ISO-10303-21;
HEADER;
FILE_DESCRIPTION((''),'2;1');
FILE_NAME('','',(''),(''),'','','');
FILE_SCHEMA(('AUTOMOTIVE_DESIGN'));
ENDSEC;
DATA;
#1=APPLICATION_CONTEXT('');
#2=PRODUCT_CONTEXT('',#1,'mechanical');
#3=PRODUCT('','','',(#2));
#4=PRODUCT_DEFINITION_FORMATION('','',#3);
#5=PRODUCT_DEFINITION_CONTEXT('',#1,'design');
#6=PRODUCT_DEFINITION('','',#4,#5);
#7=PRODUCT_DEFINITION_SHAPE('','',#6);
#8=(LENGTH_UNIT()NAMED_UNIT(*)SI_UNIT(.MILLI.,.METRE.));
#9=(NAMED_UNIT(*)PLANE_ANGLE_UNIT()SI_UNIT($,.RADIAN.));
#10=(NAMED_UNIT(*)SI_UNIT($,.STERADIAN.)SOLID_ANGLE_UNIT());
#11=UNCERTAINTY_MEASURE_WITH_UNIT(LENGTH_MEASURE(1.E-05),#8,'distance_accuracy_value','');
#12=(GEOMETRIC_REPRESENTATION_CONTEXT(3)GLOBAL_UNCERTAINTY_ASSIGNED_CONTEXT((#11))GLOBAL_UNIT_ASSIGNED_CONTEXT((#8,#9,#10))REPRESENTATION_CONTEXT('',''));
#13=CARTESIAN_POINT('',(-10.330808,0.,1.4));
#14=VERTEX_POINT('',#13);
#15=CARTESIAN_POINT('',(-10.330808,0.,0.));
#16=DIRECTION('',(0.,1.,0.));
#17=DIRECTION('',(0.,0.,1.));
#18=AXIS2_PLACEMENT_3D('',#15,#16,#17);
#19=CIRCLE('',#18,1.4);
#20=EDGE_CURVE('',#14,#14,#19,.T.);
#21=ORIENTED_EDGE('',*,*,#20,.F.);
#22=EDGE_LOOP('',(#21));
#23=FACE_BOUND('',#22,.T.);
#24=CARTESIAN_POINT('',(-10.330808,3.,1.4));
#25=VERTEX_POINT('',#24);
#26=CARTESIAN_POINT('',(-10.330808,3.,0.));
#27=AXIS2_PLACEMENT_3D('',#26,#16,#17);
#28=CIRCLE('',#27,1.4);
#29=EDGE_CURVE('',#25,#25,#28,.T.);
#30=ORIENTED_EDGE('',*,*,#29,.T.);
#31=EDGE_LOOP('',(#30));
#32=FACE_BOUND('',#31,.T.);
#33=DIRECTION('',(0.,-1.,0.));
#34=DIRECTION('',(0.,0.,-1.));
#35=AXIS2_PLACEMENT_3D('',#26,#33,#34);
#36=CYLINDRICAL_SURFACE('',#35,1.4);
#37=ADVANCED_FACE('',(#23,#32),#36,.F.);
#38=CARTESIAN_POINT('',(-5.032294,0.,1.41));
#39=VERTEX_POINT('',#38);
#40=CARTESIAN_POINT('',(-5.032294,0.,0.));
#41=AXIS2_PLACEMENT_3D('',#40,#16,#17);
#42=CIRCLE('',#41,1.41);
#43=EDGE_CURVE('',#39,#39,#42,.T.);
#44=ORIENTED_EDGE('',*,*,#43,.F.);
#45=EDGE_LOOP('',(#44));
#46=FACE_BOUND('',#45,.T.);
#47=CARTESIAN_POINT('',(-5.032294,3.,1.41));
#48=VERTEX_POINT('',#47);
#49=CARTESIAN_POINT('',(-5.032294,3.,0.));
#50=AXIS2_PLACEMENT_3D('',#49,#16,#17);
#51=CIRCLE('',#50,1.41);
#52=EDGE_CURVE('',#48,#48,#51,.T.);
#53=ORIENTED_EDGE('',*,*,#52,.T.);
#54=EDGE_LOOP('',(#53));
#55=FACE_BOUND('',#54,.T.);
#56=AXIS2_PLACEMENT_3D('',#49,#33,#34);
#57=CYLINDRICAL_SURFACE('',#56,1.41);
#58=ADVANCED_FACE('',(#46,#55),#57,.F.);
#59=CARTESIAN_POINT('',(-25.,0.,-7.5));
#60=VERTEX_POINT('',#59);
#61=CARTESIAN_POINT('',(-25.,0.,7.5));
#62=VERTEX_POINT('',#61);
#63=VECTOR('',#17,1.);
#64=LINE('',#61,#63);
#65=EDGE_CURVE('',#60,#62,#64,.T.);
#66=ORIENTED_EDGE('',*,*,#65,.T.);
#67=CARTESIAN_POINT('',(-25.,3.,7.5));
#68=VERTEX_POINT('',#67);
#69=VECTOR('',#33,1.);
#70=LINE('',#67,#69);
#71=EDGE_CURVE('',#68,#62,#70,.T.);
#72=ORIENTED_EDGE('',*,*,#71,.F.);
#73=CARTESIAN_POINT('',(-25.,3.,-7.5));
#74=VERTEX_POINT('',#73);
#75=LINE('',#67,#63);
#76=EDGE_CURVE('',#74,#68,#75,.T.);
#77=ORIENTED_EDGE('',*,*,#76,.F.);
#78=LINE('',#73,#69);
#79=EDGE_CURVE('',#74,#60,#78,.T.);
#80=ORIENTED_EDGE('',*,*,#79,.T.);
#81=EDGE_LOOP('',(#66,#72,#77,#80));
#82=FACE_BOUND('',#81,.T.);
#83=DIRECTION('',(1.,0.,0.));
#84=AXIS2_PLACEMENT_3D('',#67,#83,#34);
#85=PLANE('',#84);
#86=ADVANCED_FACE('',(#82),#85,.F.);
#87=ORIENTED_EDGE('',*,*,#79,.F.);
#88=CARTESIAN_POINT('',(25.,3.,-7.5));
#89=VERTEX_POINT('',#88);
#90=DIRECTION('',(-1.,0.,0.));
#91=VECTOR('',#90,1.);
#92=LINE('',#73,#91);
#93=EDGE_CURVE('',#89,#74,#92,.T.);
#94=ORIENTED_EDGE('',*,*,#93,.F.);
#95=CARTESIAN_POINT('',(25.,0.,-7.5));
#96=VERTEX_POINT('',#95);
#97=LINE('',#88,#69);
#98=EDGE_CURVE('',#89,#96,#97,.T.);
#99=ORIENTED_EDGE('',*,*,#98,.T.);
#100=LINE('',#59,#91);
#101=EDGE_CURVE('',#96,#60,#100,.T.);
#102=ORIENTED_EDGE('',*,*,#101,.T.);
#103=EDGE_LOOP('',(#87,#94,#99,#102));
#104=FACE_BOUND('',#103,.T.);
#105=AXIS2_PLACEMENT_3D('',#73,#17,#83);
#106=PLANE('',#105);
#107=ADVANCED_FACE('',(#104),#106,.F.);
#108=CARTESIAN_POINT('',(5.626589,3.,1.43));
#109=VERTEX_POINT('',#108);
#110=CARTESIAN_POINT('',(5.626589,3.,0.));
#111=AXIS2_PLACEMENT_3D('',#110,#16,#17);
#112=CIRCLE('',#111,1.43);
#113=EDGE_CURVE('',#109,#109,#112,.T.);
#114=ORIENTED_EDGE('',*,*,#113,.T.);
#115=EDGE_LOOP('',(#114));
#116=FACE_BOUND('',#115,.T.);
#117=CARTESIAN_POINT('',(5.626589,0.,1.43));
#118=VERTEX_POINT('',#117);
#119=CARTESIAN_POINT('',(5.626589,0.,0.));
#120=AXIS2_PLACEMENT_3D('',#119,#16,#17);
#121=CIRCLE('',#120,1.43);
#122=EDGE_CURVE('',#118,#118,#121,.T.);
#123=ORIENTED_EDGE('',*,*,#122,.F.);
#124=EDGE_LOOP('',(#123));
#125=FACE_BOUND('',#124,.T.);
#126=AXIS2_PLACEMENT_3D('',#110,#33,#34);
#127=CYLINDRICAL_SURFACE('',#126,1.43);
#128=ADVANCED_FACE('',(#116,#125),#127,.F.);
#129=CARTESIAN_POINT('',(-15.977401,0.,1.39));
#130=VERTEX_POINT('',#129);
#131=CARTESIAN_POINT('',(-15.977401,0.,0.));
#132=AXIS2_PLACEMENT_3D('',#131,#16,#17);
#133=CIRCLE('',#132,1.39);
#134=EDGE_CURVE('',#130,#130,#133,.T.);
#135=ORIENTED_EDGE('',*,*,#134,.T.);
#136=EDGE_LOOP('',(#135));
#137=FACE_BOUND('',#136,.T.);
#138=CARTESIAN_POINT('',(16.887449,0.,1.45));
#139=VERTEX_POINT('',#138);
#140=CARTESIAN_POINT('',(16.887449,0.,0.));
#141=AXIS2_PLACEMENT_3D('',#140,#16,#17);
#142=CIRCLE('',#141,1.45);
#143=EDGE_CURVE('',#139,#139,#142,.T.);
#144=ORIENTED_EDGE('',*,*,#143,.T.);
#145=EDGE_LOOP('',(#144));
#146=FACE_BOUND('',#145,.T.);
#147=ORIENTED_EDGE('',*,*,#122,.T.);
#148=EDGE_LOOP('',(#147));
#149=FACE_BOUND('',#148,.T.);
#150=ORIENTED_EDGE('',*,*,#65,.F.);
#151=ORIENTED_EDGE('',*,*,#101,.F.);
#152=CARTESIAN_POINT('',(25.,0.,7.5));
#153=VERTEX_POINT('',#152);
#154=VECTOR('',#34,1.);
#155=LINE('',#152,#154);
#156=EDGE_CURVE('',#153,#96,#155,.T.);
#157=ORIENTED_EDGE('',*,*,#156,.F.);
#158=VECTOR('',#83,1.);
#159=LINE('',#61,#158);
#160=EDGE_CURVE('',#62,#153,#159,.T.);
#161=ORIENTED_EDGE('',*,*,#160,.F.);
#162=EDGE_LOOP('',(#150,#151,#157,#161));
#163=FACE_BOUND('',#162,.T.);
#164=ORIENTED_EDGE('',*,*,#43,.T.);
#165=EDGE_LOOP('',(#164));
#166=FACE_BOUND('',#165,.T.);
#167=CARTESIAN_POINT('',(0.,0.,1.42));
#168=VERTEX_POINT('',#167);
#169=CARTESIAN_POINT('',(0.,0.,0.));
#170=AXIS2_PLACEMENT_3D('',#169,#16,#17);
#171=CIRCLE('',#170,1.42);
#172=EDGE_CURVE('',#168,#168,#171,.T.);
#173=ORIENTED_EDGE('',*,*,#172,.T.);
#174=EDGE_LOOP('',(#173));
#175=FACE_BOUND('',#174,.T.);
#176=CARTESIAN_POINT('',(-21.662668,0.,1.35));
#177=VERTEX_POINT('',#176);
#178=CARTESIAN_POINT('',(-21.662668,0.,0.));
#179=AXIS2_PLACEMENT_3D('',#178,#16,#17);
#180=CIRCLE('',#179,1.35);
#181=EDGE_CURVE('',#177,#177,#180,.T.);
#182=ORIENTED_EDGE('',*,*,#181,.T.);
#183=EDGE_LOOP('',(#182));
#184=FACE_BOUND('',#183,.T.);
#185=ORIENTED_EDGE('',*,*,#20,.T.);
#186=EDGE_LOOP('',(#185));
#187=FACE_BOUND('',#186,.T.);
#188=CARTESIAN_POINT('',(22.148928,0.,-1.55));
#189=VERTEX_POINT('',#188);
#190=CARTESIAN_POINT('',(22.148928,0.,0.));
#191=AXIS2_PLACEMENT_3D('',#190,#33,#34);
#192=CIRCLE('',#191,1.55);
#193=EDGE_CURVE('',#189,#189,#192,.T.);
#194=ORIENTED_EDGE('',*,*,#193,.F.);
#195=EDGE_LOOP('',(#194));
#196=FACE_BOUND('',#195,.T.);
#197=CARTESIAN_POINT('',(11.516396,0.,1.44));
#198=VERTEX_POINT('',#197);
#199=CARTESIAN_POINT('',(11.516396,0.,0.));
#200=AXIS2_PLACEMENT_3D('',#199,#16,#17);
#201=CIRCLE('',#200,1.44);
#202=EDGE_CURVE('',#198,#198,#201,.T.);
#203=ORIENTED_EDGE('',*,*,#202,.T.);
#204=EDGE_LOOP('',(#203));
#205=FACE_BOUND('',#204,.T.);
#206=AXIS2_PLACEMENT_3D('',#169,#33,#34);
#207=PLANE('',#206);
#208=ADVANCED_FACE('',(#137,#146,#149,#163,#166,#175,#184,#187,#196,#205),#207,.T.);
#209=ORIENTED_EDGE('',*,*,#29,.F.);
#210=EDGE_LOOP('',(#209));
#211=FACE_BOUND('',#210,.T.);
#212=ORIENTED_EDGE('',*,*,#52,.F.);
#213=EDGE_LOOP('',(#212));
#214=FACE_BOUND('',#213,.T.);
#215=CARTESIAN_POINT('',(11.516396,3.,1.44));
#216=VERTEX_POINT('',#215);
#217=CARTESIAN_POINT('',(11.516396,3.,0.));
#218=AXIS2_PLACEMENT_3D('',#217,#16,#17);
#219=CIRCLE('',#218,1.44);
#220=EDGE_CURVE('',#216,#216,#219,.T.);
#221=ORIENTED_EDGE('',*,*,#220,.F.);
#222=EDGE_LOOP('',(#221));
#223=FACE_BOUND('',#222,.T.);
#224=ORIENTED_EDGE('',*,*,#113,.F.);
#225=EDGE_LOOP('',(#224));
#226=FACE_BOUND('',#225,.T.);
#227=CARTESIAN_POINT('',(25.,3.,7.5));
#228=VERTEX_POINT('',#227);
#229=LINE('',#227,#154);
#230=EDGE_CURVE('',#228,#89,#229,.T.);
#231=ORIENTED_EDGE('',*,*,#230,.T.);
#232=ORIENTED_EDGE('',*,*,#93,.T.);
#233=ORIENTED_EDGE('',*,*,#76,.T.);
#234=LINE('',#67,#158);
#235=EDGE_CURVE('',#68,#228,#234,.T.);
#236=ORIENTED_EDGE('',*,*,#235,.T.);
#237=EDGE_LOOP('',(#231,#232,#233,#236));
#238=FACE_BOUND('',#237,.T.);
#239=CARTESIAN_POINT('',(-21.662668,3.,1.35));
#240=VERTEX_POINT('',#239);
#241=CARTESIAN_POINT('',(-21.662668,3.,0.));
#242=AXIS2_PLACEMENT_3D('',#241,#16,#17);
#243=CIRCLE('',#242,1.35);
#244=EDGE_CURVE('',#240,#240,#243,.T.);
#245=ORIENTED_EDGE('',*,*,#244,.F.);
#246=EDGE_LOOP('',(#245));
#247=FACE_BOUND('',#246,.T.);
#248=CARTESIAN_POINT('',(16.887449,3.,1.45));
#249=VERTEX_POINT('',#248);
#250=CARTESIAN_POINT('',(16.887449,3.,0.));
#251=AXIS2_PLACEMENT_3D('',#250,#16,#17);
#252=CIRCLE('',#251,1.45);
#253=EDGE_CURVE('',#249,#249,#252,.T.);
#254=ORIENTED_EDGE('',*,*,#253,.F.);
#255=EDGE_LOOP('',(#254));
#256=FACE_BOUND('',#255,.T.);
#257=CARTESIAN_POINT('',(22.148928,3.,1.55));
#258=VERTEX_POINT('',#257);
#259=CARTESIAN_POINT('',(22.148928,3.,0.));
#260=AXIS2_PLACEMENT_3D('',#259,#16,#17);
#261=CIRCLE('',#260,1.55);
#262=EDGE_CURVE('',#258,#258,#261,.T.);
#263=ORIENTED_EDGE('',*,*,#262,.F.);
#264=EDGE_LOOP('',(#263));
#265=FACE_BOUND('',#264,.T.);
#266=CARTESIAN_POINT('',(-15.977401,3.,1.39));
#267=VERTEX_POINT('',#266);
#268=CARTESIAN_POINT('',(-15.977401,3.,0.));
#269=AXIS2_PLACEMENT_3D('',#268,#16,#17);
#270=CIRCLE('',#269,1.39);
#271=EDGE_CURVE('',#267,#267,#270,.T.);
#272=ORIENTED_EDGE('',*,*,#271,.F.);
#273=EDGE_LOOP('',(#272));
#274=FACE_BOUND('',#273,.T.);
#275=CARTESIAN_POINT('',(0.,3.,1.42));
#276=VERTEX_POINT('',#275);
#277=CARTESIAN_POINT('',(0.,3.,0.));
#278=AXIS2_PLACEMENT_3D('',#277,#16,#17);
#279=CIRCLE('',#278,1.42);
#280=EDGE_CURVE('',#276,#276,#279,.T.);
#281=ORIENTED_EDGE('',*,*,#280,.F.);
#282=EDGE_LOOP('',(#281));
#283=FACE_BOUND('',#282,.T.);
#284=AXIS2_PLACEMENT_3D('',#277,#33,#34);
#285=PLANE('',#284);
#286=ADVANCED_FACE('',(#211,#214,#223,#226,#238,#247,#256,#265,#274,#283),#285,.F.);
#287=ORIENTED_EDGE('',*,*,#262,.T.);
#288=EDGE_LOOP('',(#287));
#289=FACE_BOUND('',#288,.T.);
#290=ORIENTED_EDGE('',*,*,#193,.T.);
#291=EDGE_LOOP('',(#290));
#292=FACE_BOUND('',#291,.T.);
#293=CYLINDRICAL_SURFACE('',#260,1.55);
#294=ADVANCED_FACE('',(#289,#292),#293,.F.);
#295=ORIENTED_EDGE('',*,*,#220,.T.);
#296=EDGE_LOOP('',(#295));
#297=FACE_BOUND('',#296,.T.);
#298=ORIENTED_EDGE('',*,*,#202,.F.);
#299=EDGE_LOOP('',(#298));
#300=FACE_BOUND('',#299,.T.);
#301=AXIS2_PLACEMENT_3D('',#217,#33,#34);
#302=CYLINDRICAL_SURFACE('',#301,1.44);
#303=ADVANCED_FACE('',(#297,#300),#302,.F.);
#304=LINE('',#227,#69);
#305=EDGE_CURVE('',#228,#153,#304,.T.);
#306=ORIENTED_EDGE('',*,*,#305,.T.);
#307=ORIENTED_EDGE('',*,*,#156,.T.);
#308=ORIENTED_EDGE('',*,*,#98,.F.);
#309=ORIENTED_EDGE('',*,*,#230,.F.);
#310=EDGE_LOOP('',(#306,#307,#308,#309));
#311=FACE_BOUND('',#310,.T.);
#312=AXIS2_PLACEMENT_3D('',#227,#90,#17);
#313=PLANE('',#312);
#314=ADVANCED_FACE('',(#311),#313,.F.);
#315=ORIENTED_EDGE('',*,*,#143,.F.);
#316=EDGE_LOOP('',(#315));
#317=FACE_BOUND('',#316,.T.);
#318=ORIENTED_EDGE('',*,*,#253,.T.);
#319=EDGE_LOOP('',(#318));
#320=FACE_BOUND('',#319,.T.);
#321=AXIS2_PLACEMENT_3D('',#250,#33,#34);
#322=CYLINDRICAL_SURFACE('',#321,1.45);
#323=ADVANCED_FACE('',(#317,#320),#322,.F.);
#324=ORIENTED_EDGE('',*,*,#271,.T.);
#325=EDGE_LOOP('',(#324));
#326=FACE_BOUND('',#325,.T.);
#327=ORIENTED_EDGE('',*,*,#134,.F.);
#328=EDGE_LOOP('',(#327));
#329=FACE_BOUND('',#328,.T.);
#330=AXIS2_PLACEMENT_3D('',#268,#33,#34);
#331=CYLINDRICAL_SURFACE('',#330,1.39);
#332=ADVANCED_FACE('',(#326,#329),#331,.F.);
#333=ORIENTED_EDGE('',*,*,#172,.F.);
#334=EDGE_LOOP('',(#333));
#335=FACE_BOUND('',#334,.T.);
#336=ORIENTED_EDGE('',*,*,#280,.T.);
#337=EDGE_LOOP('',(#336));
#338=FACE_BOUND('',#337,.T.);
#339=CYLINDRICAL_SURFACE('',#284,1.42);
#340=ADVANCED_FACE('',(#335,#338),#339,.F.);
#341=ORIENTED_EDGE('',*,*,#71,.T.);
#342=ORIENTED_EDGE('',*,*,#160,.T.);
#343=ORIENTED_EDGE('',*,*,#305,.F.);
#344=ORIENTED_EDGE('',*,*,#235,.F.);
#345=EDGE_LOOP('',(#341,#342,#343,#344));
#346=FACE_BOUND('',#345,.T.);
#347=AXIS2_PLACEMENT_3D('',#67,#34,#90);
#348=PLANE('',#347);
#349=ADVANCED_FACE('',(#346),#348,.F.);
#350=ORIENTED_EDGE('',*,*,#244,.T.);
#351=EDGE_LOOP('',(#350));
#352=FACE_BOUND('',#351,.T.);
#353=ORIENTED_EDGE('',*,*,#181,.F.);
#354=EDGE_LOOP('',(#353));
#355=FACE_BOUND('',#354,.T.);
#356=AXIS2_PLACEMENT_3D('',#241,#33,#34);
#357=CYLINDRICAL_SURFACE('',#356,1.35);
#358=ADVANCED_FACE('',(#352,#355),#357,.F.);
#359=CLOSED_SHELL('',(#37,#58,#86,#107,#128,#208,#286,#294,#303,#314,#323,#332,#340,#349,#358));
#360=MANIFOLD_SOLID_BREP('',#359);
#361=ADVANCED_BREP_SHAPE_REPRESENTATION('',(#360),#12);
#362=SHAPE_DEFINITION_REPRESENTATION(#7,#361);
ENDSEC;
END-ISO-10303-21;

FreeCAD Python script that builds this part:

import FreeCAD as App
import Part
import Sketcher

V = App.Vector
Q = App.Units.Quantity


def add_polygon(sketch, points):
    """Adds a closed chain of lines whose ends are joined by coincident constraints."""
    first, n = sketch.GeometryCount, len(points)
    for a, b in zip(points, points[1:] + points[:1]):
        sketch.addGeometry(Part.LineSegment(App.Vector(*a, 0), App.Vector(*b, 0)), False)
    for i in range(n):
        sketch.addConstraint(Sketcher.Constraint("Coincident", first + i, 2, first + (i + 1) % n, 1))

doc = App.newDocument("Part")
params = doc.addObject("Spreadsheet::Sheet", "Params")
for row, (alias, value) in enumerate([
    ("sketch1_diameter", "2.7 mm"),
    ("sketch1_diameter2", "2.8 mm"),
    ("sketch1_diameter3", "2.9 mm"),
    ("sketch1_diameter4", "2.78 mm"),
    ("sketch1_diameter5", "2.82 mm"),
    ("pad1_length", "3 mm"),
    ("sketch2_diameter", "3.1 mm"),
    ("hole_diameter", "3.1 mm"),
    ("hole_depth", "3.18 mm"),
], start=1):
    params.set(f"A{row}", alias)
    params.set(f"B{row}", "=" + value)
    params.setAlias(f"B{row}", alias)

body = doc.addObject("PartDesign::Body", "Body")

sketch1 = body.newObject("Sketcher::SketchObject", "Sketch")
sketch1.AttachmentSupport = (doc.getObject("XZ_Plane"), [""])
sketch1.MapMode = "FlatFace"
add_polygon(sketch1, [(-25, -7.5), (-25, 7.5), (25, 7.5), (25, -7.5)])
sketch1.addGeometry(Part.Circle(V(-21.7, 0, 0), V(0, 0, 1), 1.4), False)
sketch1.addGeometry(Part.Circle(V(-16, 0, 0), V(0, 0, 1), 1.4), False)
sketch1.addGeometry(Part.Circle(V(-10.3, 0, 0), V(0, 0, 1), 1.4), False)
sketch1.addGeometry(Part.Circle(V(-5, 0, 0), V(0, 0, 1), 1.4), False)
sketch1.addGeometry(Part.Circle(V(0, 0, 0), V(0, 0, 1), 1.4), False)
sketch1.addGeometry(Part.Circle(V(5.6, 0, 0), V(0, 0, 1), 1.4), False)
sketch1.addGeometry(Part.Circle(V(11.5, 0, 0), V(0, 0, 1), 1.4), False)
sketch1.addGeometry(Part.Circle(V(16.9, 0, 0), V(0, 0, 1), 1.4), False)
sketch1.addConstraint(Sketcher.Constraint("Vertical", 0))
sketch1.addConstraint(Sketcher.Constraint("Horizontal", 1))
sketch1.addConstraint(Sketcher.Constraint("Vertical", 2))
sketch1.addConstraint(Sketcher.Constraint("Horizontal", 3))
sketch1.addConstraint(Sketcher.Constraint("Coincident", 8, 3, -1, 1))
sketch1.addConstraint(Sketcher.Constraint("Symmetric", 0, 2, 2, 2, -1, 1))
sketch1.addConstraint(Sketcher.Constraint("PointOnObject", 4, 3, -1))
sketch1.addConstraint(Sketcher.Constraint("PointOnObject", 5, 3, -1))
sketch1.addConstraint(Sketcher.Constraint("PointOnObject", 6, 3, -1))
sketch1.addConstraint(Sketcher.Constraint("PointOnObject", 7, 3, -1))
sketch1.addConstraint(Sketcher.Constraint("PointOnObject", 9, 3, -1))
sketch1.addConstraint(Sketcher.Constraint("PointOnObject", 10, 3, -1))
sketch1.addConstraint(Sketcher.Constraint("PointOnObject", 11, 3, -1))
sketch1.addConstraint(Sketcher.Constraint("Diameter", 4, Q("2.7 mm")))
sketch1.addConstraint(Sketcher.Constraint("Diameter", 6, Q("2.8 mm")))
sketch1.addConstraint(Sketcher.Constraint("Diameter", 11, Q("2.9 mm")))
sketch1.addConstraint(Sketcher.Constraint("Diameter", 5, Q("2.78 mm")))
sketch1.addConstraint(Sketcher.Constraint("Diameter", 7, Q("2.82 mm")))
sketch1.addConstraint(Sketcher.Constraint("Diameter", 8, Q("2.84 mm")))
sketch1.addConstraint(Sketcher.Constraint("Diameter", 9, Q("2.86 mm")))
sketch1.addConstraint(Sketcher.Constraint("Diameter", 10, Q("2.88 mm")))
sketch1.addConstraint(Sketcher.Constraint("DistanceX", 1, 1, 1, 2, Q("50 mm")))
sketch1.addConstraint(Sketcher.Constraint("DistanceY", 0, 1, 0, 2, Q("15 mm")))
sketch1.addConstraint(Sketcher.Constraint("DistanceX", 5, 3, -1, 1, Q("15.977401 mm")))
sketch1.addConstraint(Sketcher.Constraint("DistanceX", 4, 3, -1, 1, Q("21.662668 mm")))
sketch1.addConstraint(Sketcher.Constraint("DistanceX", 6, 3, -1, 1, Q("10.330808 mm")))
sketch1.addConstraint(Sketcher.Constraint("DistanceX", -1, 1, 9, 3, Q("5.626589 mm")))
sketch1.addConstraint(Sketcher.Constraint("DistanceX", -1, 1, 11, 3, Q("16.887449 mm")))
sketch1.addConstraint(Sketcher.Constraint("DistanceX", 7, 3, 10, 3, Q("16.548689 mm")))
sketch1.addConstraint(Sketcher.Constraint("DistanceX", 7, 3, -1, 1, Q("5.032294 mm")))
sketch1.setExpression("Constraints[17]", "Params.sketch1_diameter")
sketch1.setExpression("Constraints[18]", "Params.sketch1_diameter2")
sketch1.setExpression("Constraints[19]", "Params.sketch1_diameter3")
sketch1.setExpression("Constraints[20]", "Params.sketch1_diameter4")
sketch1.setExpression("Constraints[21]", "Params.sketch1_diameter5")
pad1 = body.newObject("PartDesign::Pad", "Pad")
pad1.Profile = sketch1
pad1.setExpression("Length", "Params.pad1_length")
pad1.Reversed = True

sketch2 = body.newObject("Sketcher::SketchObject", "Sketch001")
sketch2.AttachmentSupport = (doc.getObject("XZ_Plane"), [""])
sketch2.MapMode = "FlatFace"
sketch2.AttachmentOffset = App.Placement(V(0, 0, -3), App.Rotation())
sketch2.addGeometry(Part.Circle(V(22.1, 0, 0), V(0, 0, 1), 1.6), False)
sketch2.addConstraint(Sketcher.Constraint("PointOnObject", 0, 3, -1))
sketch2.addConstraint(Sketcher.Constraint("Diameter", 0, Q("3.1 mm")))
sketch2.addConstraint(Sketcher.Constraint("DistanceX", -1, 1, 0, 3, Q("22.148928 mm")))
sketch2.setExpression("Constraints[1]", "Params.sketch2_diameter")
doc.recompute()
hole = body.newObject("PartDesign::Hole", "Hole")
hole.Profile = sketch2
hole.ThreadType = "None"
hole.setExpression("Diameter", "Params.hole_diameter")
hole.DepthType = "Dimension"
hole.setExpression("Depth", "Params.hole_depth")
hole.DrillPoint = "Angled"
hole.DrillPointAngle = 118
hole.Reversed = True

doc.recompute()
